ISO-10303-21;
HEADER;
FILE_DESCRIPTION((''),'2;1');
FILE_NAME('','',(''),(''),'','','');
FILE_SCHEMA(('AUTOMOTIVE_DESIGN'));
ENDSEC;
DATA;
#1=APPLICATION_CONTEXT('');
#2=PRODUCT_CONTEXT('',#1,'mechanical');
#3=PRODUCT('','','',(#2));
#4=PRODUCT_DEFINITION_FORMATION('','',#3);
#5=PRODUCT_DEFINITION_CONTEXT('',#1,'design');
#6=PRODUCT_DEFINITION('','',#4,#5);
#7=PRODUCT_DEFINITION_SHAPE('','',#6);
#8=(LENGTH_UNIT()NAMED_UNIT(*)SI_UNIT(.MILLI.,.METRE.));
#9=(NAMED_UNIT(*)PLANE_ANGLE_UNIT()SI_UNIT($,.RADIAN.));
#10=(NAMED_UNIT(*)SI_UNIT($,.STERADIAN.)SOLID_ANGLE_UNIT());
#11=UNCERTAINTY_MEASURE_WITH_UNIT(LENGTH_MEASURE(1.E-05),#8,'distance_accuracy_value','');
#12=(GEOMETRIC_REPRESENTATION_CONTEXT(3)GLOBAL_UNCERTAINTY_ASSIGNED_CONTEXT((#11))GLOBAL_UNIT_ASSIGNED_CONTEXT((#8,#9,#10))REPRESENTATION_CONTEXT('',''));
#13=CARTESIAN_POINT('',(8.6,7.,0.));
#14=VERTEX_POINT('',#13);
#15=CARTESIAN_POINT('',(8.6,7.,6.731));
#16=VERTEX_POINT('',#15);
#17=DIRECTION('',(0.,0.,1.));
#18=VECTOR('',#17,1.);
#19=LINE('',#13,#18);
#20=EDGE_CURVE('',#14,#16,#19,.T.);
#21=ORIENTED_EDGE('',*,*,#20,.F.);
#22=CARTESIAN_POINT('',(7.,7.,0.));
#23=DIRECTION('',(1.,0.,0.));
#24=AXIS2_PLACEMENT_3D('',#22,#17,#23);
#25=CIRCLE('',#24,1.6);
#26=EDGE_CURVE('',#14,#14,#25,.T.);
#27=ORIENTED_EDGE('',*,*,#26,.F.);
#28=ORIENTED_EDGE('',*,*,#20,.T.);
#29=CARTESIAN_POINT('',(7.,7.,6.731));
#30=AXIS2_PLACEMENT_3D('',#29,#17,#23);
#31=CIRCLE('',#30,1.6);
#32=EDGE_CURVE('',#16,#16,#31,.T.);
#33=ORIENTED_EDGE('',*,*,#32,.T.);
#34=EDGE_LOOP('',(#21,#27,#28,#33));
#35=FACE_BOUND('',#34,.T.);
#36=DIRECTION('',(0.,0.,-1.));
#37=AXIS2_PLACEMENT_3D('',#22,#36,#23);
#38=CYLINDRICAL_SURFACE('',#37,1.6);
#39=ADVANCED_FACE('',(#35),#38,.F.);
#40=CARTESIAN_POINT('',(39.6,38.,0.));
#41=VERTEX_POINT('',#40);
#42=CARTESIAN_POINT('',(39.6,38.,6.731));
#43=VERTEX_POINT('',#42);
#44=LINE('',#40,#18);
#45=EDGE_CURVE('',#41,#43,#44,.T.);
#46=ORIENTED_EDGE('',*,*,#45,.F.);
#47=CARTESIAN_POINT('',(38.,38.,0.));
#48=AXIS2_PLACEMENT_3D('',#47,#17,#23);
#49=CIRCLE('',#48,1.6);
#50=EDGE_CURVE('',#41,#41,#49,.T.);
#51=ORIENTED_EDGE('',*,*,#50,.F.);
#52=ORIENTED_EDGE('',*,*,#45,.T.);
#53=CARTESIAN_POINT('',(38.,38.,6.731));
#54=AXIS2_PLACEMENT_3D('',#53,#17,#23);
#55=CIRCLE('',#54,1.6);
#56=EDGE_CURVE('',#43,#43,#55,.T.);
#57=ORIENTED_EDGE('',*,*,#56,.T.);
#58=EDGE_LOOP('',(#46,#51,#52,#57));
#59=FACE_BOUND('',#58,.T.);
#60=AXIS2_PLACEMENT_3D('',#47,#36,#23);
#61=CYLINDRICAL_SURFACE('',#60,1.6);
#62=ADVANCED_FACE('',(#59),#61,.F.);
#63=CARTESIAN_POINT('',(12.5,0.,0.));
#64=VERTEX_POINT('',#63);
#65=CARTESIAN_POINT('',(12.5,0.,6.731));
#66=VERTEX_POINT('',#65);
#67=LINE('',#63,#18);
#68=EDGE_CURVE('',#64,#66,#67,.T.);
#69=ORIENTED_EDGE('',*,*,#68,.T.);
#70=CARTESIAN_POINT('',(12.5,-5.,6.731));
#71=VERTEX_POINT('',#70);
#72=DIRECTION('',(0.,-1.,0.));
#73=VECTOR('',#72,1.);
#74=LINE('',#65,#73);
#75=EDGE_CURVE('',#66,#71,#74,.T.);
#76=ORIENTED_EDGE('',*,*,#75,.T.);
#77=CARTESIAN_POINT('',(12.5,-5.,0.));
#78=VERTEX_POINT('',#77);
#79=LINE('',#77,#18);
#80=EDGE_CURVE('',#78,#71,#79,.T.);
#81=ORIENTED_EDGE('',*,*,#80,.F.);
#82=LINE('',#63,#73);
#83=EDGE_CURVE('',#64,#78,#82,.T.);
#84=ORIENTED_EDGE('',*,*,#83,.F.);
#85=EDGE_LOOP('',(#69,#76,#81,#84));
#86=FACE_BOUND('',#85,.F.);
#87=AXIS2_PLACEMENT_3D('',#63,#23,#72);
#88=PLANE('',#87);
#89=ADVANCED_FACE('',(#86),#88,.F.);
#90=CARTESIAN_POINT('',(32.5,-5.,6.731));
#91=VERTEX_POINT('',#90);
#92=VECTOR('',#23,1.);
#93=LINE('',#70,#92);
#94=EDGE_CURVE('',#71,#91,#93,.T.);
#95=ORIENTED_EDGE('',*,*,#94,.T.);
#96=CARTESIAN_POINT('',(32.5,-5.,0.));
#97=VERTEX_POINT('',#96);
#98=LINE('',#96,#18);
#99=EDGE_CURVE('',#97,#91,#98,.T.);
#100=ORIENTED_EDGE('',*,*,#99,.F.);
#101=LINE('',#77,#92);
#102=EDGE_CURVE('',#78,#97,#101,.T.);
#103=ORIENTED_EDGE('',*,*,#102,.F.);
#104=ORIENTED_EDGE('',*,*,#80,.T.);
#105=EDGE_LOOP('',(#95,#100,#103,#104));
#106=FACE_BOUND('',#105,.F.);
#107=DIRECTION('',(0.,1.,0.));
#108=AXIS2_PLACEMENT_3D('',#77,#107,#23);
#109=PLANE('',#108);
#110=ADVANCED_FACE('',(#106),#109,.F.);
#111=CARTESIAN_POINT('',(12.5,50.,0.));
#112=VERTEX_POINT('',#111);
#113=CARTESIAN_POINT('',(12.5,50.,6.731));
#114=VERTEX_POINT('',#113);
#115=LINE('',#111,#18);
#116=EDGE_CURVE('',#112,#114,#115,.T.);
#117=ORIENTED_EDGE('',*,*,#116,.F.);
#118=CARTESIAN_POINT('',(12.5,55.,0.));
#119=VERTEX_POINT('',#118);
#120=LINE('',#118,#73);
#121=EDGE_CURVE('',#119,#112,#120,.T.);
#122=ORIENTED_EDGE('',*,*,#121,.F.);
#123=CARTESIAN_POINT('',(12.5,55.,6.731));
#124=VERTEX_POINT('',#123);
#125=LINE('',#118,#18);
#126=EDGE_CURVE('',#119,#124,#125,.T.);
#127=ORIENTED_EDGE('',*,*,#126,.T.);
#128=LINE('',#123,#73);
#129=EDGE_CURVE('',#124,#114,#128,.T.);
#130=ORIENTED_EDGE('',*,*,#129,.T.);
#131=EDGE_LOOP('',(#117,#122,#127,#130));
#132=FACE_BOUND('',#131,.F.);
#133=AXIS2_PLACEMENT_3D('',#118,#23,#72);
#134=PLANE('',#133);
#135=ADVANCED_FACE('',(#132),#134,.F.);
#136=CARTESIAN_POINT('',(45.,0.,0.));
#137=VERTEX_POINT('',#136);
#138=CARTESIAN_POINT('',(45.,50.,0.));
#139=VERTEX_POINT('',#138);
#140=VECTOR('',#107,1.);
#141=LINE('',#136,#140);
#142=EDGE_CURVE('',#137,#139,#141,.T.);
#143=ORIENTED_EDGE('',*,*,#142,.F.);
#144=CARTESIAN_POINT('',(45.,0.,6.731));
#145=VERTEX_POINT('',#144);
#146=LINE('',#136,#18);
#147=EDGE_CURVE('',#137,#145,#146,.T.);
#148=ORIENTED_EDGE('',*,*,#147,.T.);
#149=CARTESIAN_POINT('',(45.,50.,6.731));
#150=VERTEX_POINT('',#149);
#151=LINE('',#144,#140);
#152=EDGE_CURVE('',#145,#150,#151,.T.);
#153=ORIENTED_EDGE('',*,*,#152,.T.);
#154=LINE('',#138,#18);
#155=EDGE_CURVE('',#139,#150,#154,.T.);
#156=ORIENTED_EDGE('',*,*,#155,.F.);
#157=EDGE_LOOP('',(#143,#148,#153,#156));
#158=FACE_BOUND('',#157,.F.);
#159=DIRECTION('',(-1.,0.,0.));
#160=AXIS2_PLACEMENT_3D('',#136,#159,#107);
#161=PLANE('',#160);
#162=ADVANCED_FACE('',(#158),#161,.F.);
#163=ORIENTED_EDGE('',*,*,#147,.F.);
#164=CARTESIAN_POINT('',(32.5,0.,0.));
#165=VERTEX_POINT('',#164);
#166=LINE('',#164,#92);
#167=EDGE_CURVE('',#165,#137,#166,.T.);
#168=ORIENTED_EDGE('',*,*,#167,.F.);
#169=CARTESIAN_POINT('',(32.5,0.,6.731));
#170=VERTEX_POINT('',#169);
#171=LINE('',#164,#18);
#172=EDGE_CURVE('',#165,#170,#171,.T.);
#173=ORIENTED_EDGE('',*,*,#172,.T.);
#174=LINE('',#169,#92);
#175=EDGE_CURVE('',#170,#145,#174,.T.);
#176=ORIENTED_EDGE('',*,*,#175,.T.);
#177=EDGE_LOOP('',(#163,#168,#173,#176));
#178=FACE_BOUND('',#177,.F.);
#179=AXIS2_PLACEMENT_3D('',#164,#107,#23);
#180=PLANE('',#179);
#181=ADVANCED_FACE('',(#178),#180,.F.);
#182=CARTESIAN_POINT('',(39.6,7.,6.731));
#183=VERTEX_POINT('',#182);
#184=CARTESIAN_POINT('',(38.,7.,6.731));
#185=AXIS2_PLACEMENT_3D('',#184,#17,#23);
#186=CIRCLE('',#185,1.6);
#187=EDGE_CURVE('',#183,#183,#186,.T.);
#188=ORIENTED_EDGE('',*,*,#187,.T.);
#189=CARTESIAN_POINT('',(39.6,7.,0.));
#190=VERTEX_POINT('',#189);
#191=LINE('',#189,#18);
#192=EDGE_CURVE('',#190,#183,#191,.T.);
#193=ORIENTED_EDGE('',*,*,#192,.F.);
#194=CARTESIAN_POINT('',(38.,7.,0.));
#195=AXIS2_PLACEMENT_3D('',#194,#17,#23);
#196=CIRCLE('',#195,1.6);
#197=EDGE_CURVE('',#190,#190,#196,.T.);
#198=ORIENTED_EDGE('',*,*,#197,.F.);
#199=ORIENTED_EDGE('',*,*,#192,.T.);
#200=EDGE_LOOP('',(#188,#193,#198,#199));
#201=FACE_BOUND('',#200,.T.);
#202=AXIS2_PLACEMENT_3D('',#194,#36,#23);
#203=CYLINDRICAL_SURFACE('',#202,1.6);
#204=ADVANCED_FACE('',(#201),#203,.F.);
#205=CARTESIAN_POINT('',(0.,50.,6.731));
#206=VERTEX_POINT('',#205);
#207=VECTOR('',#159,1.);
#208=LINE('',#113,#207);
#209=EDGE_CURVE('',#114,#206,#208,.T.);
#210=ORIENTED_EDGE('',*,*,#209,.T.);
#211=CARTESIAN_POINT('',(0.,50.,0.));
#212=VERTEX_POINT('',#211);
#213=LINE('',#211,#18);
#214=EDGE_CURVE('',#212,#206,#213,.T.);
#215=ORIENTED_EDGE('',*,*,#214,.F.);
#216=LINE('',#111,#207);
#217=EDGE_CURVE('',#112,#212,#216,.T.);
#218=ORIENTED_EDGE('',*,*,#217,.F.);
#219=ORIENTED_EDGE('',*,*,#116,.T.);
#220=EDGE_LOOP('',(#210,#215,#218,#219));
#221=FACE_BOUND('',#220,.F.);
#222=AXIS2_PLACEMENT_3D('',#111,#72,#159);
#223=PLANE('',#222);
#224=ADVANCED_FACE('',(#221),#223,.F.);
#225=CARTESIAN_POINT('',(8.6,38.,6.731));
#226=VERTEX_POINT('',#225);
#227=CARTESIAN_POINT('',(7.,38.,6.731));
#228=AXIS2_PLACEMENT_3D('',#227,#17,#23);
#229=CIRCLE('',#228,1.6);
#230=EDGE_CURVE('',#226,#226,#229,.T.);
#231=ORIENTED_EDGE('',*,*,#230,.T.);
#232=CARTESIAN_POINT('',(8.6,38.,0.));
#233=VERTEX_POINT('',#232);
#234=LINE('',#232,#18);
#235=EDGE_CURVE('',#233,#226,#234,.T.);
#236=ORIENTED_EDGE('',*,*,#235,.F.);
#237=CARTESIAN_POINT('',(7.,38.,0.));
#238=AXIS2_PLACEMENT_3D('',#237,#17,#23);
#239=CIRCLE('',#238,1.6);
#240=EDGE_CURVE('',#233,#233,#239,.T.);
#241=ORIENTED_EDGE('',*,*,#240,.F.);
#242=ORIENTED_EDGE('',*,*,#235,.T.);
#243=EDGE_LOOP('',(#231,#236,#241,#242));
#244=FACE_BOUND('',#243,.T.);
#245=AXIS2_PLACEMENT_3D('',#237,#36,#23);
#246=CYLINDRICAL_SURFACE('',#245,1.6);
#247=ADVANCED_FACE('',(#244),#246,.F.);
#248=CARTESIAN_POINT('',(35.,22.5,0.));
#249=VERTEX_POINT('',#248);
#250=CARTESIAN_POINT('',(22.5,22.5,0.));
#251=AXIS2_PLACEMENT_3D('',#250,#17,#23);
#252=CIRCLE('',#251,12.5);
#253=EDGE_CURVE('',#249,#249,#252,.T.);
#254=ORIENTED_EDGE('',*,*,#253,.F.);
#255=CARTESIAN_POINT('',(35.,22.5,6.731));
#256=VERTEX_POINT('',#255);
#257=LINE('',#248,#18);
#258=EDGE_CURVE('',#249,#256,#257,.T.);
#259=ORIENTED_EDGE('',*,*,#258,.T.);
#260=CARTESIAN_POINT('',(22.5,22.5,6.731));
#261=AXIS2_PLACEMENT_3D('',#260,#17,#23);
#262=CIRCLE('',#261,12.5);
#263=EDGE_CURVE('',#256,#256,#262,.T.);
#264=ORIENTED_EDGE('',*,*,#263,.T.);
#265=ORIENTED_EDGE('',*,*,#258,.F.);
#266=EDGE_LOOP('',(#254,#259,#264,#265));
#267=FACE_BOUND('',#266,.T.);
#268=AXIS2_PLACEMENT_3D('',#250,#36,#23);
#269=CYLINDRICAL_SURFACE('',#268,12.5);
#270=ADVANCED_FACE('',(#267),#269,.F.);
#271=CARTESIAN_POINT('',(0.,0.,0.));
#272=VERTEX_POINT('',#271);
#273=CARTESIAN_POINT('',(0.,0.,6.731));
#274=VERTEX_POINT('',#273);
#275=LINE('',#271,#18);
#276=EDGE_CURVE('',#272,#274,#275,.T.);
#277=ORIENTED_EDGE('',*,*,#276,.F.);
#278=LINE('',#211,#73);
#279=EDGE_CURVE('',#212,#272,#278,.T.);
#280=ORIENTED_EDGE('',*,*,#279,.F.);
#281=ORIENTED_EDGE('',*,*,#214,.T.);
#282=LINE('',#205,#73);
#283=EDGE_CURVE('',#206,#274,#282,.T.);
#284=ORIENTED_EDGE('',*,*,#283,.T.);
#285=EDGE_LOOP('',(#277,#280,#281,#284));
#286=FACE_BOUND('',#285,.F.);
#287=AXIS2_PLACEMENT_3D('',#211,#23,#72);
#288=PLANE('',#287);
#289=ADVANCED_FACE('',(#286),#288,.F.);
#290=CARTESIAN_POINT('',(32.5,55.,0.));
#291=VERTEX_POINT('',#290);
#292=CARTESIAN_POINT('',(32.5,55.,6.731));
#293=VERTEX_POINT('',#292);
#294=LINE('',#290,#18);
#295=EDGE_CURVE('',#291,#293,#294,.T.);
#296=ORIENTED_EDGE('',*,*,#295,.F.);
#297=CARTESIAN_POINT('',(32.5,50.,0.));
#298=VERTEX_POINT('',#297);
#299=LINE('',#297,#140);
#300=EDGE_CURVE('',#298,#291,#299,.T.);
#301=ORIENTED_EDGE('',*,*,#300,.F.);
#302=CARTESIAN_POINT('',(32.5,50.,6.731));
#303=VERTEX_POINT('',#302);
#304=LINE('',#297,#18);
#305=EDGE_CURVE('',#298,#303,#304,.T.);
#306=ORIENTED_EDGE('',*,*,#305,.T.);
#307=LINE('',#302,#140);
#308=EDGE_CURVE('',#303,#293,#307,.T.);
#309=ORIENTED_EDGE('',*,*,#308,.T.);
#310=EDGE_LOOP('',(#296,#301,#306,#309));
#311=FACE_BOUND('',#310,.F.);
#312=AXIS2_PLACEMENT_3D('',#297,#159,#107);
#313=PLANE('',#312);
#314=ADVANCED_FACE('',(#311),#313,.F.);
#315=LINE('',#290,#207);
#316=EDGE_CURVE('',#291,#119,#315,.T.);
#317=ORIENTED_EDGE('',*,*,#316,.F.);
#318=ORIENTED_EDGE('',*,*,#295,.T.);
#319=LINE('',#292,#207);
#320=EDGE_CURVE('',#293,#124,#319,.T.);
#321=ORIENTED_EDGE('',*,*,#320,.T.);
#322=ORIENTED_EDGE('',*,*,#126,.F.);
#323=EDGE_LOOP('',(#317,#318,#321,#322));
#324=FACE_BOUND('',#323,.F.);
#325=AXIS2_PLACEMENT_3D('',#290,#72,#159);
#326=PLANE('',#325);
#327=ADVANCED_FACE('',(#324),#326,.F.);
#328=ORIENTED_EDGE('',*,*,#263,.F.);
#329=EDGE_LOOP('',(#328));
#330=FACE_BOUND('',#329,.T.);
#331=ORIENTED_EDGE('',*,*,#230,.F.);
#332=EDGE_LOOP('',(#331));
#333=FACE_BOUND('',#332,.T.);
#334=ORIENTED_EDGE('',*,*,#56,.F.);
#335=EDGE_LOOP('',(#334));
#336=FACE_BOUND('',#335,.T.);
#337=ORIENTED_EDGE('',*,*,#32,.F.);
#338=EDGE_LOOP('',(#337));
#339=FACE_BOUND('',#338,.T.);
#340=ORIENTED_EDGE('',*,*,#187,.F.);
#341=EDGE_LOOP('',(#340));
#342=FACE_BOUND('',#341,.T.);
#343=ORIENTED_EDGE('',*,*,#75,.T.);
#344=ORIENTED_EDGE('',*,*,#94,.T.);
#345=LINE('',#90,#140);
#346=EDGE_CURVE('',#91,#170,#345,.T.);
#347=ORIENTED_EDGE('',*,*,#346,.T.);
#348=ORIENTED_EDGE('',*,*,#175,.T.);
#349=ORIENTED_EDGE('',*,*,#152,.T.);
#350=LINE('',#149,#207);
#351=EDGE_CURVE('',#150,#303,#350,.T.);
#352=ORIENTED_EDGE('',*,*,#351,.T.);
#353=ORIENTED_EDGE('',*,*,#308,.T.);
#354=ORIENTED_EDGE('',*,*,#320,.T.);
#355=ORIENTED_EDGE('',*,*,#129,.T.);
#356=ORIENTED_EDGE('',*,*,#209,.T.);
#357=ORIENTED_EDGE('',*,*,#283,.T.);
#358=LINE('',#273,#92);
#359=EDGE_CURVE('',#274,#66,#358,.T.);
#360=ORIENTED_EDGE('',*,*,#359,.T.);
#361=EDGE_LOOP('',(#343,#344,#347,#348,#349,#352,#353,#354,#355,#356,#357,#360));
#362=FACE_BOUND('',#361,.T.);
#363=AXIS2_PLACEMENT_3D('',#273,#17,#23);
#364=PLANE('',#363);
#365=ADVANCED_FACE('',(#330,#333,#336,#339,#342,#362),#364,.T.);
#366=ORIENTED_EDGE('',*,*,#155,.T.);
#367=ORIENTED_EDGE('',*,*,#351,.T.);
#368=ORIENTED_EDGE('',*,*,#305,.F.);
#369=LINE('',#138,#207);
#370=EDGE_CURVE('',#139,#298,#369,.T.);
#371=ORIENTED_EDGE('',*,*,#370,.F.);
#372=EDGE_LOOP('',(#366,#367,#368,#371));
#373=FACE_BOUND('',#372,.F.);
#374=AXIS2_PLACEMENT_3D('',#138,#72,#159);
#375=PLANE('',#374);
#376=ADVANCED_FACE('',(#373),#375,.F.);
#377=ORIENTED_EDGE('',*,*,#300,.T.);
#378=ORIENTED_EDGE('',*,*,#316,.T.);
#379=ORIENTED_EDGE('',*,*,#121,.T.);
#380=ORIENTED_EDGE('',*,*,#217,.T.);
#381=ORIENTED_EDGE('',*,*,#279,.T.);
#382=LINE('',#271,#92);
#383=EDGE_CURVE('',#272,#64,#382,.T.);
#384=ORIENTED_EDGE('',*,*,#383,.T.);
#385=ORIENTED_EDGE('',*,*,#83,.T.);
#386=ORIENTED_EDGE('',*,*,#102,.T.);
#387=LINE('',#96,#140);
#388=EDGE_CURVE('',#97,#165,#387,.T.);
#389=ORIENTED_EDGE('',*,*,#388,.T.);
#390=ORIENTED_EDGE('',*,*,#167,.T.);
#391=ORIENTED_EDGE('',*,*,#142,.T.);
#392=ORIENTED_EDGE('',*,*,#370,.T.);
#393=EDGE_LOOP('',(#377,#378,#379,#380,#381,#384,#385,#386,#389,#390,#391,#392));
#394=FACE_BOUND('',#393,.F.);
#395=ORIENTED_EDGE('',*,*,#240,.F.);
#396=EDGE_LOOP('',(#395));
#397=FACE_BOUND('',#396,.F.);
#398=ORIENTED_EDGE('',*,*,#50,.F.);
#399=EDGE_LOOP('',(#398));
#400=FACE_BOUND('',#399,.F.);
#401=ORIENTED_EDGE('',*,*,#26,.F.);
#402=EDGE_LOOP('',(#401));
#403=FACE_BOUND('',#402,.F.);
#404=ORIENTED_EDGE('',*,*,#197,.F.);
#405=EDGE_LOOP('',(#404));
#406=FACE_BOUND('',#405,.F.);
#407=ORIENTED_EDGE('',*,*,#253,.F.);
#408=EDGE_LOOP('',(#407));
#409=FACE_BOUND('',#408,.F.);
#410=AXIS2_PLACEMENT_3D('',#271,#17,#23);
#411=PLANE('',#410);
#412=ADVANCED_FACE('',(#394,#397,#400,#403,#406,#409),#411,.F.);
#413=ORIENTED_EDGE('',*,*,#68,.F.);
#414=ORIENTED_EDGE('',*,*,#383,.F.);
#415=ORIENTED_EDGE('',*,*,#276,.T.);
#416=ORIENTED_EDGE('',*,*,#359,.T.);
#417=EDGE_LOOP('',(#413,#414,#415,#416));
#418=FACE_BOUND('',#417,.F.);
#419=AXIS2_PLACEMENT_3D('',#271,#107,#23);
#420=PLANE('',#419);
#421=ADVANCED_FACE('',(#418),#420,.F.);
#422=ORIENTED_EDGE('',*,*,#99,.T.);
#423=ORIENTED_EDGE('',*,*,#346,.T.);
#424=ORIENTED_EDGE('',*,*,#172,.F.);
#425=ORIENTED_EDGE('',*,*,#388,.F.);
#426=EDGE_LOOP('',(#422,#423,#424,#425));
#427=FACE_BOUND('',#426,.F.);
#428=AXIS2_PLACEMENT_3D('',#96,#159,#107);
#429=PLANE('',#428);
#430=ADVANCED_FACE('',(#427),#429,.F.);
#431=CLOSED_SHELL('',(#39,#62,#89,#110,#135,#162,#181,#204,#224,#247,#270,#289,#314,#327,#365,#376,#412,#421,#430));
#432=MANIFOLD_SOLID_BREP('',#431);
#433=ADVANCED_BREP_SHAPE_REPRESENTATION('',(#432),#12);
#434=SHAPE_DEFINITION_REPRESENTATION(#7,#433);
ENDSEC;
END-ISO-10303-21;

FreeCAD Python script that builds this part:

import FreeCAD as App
import Part
import Sketcher
Q = App.Units.Quantity

doc = App.newDocument("Part")
body = doc.addObject("PartDesign::Body", "Body")

# Sketch on XY plane
sketch1 = body.newObject("Sketcher::SketchObject", "Sketch")
sketch1.AttachmentSupport = (doc.getObject("XY_Plane"), [""])
sketch1.MapMode = "FlatFace"
sketch1.addGeometry([
    Part.LineSegment(App.Vector(0, 50, 0), App.Vector(0, 0, 0)),  # 0
    Part.LineSegment(App.Vector(0, 0, 0), App.Vector(12.5, 0, 0)),  # 1
    Part.LineSegment(App.Vector(12.5, 0, 0), App.Vector(12.5, -5, 0)),  # 2
    Part.LineSegment(App.Vector(12.5, -5, 0), App.Vector(32.5, -5, 0)),  # 3
    Part.LineSegment(App.Vector(32.5, -5, 0), App.Vector(32.5, 0, 0)),  # 4
    Part.LineSegment(App.Vector(32.5, 0, 0), App.Vector(45, 0, 0)),  # 5
    Part.LineSegment(App.Vector(45, 0, 0), App.Vector(45, 50, 0)),  # 6
    Part.LineSegment(App.Vector(45, 50, 0), App.Vector(32.5, 50, 0)),  # 7
    Part.LineSegment(App.Vector(32.5, 50, 0), App.Vector(32.5, 55, 0)),  # 8
    Part.LineSegment(App.Vector(32.5, 55, 0), App.Vector(12.5, 55, 0)),  # 9
    Part.LineSegment(App.Vector(12.5, 55, 0), App.Vector(12.5, 50, 0)),  # 10
    Part.LineSegment(App.Vector(12.5, 50, 0), App.Vector(0, 50, 0)),  # 11
    Part.Circle(App.Vector(7, 7, 0), App.Vector(0, 0, 1), 1.6),  # 12
    Part.Circle(App.Vector(38, 7, 0), App.Vector(0, 0, 1), 1.6),  # 13
    Part.Circle(App.Vector(22.5, 22.5, 0), App.Vector(0, 0, 1), 12.5),  # 14
    Part.Circle(App.Vector(7, 38, 0), App.Vector(0, 0, 1), 1.6),  # 15
    Part.Circle(App.Vector(38, 38, 0), App.Vector(0, 0, 1), 1.6),  # 16
], False)
sketch1.addConstraint([
    Sketcher.Constraint("Coincident", 0, 2, 1, 1),
    Sketcher.Constraint("Coincident", 1, 2, 2, 1),
    Sketcher.Constraint("Coincident", 2, 2, 3, 1),
    Sketcher.Constraint("Coincident", 3, 2, 4, 1),
    Sketcher.Constraint("Coincident", 4, 2, 5, 1),
    Sketcher.Constraint("Coincident", 5, 2, 6, 1),
    Sketcher.Constraint("Coincident", 6, 2, 7, 1),
    Sketcher.Constraint("Coincident", 7, 2, 8, 1),
    Sketcher.Constraint("Coincident", 8, 2, 9, 1),
    Sketcher.Constraint("Coincident", 9, 2, 10, 1),
    Sketcher.Constraint("Coincident", 10, 2, 11, 1),
    Sketcher.Constraint("Coincident", 11, 2, 0, 1),
    Sketcher.Constraint("Vertical", 0),
    Sketcher.Constraint("Horizontal", 1),
    Sketcher.Constraint("Vertical", 2),
    Sketcher.Constraint("Horizontal", 3),
    Sketcher.Constraint("Vertical", 4),
    Sketcher.Constraint("Horizontal", 5),
    Sketcher.Constraint("Vertical", 6),
    Sketcher.Constraint("Horizontal", 7),
    Sketcher.Constraint("Vertical", 8),
    Sketcher.Constraint("Horizontal", 9),
    Sketcher.Constraint("Vertical", 10),
    Sketcher.Constraint("Horizontal", 11),
    Sketcher.Constraint("Coincident", 0, 2, -1, 1),
    Sketcher.Constraint("Equal", 12, 13),
    Sketcher.Constraint("Equal", 13, 15),
    Sketcher.Constraint("Equal", 15, 16),
    Sketcher.Constraint("PointOnObject", 4, 2, -1),
    Sketcher.Constraint("Horizontal", 12, 3, 13, 3),
    Sketcher.Constraint("Horizontal", 15, 3, 16, 3),
    Sketcher.Constraint("Horizontal", 7, 2, 10, 2),
    Sketcher.Constraint("Vertical", 12, 3, 15, 3),
    Sketcher.Constraint("Vertical", 13, 3, 16, 3),
    Sketcher.Constraint("Vertical", 4, 2, 7, 2),
    Sketcher.Constraint("Vertical", 2, 2, 9, 2),
    Sketcher.Constraint("Equal", 1, 5),
    Sketcher.Constraint("Equal", 4, 8),
    Sketcher.Constraint("Diameter", 14, Q("25 mm")),
    Sketcher.Constraint("Diameter", 12, Q("3.2 mm")),
    Sketcher.Constraint("DistanceX", 3, 1, 3, 2, Q("20 mm")),
    Sketcher.Constraint("DistanceY", 0, 2, 0, 1, Q("50 mm")),
    Sketcher.Constraint("DistanceY", 2, 2, 2, 1, Q("5 mm")),
    Sketcher.Constraint("DistanceX", -1, 1, 5, 2, Q("45 mm")),
    Sketcher.Constraint("DistanceX", 12, 3, 13, 3, Q("31 mm")),
    Sketcher.Constraint("DistanceY", 12, 3, 15, 3, Q("31 mm")),
    Sketcher.Constraint("DistanceX", -1, 1, 14, 3, Q("22.5 mm")),
    Sketcher.Constraint("DistanceY", -1, 1, 14, 3, Q("22.5 mm")),
    Sketcher.Constraint("DistanceX", 12, 3, 14, 3, Q("15.5 mm")),
    Sketcher.Constraint("DistanceY", 12, 3, 14, 3, Q("15.5 mm")),
])
pad1 = body.newObject("PartDesign::Pad", "Pad")
pad1.Profile = sketch1
pad1.Length = 6.731

doc.recompute()
